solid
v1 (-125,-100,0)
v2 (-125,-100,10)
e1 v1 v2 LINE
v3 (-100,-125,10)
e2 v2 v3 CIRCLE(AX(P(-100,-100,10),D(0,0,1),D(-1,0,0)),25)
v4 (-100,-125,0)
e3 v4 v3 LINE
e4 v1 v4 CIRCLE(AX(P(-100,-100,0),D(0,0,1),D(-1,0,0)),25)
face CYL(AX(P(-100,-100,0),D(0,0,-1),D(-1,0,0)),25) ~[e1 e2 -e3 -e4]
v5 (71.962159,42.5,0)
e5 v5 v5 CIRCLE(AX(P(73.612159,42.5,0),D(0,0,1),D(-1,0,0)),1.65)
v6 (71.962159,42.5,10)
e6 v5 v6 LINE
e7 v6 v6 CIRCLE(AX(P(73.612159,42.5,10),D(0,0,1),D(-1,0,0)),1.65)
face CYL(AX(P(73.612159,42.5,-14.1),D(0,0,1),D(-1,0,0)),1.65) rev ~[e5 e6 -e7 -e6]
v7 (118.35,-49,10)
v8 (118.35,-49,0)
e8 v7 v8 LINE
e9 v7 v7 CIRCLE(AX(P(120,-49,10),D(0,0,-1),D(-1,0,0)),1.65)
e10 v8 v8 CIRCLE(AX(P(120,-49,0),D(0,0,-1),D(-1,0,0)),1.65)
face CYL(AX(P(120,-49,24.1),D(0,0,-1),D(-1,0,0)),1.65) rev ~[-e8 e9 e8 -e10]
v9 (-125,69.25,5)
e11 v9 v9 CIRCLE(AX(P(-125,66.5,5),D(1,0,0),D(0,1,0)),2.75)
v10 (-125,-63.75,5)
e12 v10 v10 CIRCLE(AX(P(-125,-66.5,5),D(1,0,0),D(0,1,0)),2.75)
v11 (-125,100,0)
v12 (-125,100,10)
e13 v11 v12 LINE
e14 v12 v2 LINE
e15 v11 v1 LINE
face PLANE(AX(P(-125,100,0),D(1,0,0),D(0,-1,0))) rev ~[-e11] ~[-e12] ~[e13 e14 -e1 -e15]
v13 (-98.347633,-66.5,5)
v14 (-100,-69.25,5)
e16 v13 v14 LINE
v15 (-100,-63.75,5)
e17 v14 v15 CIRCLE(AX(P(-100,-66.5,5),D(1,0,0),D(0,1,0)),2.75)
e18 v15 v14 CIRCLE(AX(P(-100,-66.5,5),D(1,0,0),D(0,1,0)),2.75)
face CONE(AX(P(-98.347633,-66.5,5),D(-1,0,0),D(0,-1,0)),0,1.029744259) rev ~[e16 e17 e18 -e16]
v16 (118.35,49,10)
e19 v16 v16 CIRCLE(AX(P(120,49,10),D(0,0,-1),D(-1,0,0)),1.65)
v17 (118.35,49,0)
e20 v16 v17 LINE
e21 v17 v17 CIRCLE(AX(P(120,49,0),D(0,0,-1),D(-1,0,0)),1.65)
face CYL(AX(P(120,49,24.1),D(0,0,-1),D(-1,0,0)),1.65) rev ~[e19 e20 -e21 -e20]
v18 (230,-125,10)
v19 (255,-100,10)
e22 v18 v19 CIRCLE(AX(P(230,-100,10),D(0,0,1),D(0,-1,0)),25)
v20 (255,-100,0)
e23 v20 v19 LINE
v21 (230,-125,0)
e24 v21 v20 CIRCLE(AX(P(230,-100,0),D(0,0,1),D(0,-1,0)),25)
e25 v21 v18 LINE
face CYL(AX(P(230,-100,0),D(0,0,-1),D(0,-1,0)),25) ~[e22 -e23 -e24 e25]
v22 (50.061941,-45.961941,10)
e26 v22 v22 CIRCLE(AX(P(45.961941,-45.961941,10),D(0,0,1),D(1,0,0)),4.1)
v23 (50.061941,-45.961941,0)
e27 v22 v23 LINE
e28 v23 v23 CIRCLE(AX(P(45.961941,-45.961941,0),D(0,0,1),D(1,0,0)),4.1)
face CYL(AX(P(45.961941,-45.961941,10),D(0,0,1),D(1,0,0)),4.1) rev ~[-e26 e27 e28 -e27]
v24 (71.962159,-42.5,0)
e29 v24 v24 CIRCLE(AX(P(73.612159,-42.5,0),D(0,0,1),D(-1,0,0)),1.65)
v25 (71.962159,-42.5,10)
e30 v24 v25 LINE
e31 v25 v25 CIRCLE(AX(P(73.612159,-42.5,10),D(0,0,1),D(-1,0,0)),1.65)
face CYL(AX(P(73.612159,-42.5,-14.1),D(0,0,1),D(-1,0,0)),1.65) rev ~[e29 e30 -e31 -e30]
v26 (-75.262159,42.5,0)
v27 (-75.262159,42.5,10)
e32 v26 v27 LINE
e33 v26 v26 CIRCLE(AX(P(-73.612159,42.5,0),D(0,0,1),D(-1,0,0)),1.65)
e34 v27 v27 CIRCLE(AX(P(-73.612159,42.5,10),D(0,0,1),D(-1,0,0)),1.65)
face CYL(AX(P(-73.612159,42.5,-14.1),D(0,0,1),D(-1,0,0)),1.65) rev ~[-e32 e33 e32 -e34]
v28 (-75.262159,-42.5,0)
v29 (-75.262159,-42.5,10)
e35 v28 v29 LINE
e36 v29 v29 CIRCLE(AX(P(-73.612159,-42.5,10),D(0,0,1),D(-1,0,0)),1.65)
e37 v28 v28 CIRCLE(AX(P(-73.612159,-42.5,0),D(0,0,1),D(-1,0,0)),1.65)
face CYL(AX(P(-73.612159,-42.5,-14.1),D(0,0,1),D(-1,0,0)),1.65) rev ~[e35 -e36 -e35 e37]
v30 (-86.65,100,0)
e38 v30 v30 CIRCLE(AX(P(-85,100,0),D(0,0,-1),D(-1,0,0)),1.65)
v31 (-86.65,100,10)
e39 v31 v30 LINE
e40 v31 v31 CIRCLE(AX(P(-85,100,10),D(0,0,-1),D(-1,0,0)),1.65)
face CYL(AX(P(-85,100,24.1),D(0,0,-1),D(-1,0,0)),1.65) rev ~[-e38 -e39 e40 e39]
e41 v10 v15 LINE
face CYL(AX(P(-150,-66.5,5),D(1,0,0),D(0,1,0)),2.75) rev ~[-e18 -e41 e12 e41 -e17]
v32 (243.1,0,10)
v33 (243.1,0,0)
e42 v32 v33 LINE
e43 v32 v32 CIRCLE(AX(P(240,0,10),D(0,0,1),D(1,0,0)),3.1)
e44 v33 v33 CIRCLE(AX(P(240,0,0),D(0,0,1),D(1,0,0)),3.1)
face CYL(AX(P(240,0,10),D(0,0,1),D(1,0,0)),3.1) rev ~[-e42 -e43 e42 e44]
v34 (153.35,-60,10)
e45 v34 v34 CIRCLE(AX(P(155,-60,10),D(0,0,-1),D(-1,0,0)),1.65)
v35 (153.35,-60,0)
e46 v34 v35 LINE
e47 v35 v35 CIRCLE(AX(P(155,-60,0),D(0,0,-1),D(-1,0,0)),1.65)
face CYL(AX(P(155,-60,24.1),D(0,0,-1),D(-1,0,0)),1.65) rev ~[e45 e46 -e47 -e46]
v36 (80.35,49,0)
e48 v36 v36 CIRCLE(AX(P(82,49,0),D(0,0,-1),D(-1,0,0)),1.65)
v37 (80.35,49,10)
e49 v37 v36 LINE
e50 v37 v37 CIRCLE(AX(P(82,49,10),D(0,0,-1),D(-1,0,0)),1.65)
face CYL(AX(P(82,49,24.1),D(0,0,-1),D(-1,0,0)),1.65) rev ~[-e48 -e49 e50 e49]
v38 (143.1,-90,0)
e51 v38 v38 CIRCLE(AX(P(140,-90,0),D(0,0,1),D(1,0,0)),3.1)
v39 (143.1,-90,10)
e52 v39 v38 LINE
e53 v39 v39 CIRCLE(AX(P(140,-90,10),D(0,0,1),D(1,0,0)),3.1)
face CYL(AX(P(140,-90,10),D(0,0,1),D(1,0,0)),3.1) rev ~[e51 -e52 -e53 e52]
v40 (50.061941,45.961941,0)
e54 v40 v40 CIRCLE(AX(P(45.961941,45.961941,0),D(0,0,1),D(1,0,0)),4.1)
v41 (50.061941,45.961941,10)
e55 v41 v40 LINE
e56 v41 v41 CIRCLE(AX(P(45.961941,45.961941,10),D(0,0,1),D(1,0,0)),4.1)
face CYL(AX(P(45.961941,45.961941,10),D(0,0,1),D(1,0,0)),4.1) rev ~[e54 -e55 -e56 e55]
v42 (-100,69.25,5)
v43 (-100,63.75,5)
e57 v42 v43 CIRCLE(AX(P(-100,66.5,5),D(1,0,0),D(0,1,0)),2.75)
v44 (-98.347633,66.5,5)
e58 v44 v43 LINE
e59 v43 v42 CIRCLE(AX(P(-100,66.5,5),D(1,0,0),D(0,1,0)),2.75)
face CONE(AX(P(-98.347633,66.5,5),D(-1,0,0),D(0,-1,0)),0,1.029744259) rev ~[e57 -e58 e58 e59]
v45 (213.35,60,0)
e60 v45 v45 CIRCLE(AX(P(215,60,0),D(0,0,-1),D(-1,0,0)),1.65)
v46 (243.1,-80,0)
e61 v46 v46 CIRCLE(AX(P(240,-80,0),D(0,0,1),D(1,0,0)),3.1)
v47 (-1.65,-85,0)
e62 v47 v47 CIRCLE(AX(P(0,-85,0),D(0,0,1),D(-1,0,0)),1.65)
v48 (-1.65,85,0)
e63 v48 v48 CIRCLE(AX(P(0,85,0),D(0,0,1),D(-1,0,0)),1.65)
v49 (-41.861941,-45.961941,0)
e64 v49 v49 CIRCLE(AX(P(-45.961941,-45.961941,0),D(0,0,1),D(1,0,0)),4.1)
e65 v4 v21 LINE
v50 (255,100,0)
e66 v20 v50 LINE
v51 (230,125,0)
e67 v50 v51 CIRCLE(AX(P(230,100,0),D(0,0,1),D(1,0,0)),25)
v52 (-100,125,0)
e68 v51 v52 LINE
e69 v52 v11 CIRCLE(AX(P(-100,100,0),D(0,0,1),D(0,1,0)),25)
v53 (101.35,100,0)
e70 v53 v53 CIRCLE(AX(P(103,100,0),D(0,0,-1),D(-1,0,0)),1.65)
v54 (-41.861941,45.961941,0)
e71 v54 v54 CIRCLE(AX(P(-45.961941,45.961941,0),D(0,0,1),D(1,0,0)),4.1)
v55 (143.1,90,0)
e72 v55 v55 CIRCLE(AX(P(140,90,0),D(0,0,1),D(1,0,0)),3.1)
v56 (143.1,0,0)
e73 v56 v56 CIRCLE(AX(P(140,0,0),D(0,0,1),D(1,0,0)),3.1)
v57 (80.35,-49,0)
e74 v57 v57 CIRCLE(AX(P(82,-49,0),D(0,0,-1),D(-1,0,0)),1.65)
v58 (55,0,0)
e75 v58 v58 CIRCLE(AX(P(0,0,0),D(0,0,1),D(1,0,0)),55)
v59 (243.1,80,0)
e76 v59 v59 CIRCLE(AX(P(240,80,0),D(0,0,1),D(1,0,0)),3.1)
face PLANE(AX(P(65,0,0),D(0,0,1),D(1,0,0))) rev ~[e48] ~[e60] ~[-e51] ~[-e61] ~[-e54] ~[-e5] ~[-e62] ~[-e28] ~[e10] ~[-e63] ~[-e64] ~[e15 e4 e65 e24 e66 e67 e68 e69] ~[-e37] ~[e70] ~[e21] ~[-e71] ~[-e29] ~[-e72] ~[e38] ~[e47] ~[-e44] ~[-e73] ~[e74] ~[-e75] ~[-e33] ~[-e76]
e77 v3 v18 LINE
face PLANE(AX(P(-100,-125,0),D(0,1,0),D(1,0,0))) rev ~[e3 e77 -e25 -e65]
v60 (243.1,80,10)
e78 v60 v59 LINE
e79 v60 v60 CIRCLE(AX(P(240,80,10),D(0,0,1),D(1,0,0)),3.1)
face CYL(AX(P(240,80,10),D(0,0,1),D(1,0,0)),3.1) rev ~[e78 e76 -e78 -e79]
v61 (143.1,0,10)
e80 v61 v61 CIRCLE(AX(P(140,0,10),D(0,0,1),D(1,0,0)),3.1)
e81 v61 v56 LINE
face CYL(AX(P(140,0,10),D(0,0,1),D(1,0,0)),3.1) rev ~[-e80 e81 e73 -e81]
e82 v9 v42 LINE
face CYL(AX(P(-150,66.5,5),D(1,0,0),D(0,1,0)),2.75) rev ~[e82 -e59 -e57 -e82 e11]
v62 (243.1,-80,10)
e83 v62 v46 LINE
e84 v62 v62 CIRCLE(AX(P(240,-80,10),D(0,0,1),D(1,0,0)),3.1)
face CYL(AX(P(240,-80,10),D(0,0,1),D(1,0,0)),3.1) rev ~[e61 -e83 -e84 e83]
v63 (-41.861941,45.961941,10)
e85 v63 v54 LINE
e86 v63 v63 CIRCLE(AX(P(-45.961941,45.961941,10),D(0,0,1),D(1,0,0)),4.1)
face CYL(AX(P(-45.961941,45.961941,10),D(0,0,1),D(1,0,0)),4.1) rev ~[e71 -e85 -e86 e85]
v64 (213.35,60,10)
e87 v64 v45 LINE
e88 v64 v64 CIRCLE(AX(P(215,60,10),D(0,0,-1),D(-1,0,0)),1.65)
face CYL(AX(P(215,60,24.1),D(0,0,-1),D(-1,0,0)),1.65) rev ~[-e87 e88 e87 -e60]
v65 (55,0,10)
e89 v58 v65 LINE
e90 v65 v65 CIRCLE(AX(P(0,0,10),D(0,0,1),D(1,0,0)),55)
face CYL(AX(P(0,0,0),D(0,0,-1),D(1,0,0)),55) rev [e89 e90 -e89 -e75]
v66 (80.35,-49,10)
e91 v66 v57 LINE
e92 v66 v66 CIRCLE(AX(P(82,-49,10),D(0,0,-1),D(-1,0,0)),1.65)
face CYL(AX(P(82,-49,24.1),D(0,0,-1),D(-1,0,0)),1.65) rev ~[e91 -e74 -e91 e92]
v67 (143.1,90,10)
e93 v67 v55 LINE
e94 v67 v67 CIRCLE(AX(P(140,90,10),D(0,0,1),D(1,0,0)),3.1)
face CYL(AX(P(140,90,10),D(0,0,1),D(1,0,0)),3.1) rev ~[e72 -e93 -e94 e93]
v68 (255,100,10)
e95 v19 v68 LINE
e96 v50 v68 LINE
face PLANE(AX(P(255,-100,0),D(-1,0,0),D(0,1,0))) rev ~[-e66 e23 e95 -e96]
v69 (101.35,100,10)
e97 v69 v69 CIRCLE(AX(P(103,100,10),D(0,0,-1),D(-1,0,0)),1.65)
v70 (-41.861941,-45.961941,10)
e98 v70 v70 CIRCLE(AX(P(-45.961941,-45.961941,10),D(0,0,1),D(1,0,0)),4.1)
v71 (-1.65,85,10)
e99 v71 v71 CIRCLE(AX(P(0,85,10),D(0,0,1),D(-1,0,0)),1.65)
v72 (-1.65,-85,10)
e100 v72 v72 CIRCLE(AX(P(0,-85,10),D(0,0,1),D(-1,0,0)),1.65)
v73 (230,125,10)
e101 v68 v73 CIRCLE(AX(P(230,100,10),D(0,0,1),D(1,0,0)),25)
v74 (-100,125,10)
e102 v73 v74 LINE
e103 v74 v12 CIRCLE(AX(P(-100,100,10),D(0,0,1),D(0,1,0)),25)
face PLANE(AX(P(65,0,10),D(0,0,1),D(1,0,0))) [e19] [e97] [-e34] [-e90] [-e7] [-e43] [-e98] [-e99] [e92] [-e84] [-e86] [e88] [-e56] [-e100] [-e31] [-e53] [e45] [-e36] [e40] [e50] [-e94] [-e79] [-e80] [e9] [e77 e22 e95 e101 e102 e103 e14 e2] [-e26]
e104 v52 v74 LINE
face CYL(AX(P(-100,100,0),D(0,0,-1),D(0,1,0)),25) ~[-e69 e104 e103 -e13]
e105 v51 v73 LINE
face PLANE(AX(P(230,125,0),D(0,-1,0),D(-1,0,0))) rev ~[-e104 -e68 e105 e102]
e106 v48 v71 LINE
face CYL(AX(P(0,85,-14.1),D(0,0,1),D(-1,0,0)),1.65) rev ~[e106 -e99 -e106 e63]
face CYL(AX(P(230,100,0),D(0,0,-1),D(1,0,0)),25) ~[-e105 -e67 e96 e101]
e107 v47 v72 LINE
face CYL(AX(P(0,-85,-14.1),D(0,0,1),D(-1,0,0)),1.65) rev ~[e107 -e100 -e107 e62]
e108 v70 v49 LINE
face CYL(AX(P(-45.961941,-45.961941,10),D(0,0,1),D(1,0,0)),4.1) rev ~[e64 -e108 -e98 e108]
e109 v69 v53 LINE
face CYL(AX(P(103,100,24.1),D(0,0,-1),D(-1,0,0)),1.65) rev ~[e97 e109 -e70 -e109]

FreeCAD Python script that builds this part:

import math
import FreeCAD as App
import Part
import Sketcher
Q = App.Units.Quantity

doc = App.newDocument("Part")
body = doc.addObject("PartDesign::Body", "Body")

sketch1 = body.newObject("Sketcher::SketchObject", "Sketch")
sketch1.AttachmentSupport = (doc.getObject("XY_Plane"), [""])
sketch1.MapMode = "FlatFace"
sketch1.addGeometry([
    Part.ArcOfCircle(Part.Circle(App.Vector(-100, -100, 0), App.Vector(0, 0, 1), 25), math.radians(180), math.radians(270)),
    Part.LineSegment(App.Vector(-100, -125, 0), App.Vector(230, -125, 0)),
    Part.ArcOfCircle(Part.Circle(App.Vector(230, -100, 0), App.Vector(0, 0, 1), 25), math.radians(-90), math.radians(0)),
    Part.LineSegment(App.Vector(255, -100, 0), App.Vector(255, 100, 0)),
    Part.ArcOfCircle(Part.Circle(App.Vector(230, 100, 0), App.Vector(0, 0, 1), 25), math.radians(0), math.radians(90)),
    Part.LineSegment(App.Vector(230, 125, 0), App.Vector(-100, 125, 0)),
    Part.ArcOfCircle(Part.Circle(App.Vector(-100, 100, 0), App.Vector(0, 0, 1), 25), math.radians(90), math.radians(180)),
    Part.LineSegment(App.Vector(-125, 100, 0), App.Vector(-125, -100, 0)),
    Part.Circle(App.Vector(0, 0, 0), App.Vector(0, 0, 1), 55),
], False)
sketch1.addConstraint([
    Sketcher.Constraint("Tangent", 0, 2, 1, 1),
    Sketcher.Constraint("Tangent", 1, 2, 2, 1),
    Sketcher.Constraint("Tangent", 2, 2, 3, 1),
    Sketcher.Constraint("Tangent", 3, 2, 4, 1),
    Sketcher.Constraint("Tangent", 4, 2, 5, 1),
    Sketcher.Constraint("Tangent", 5, 2, 6, 1),
    Sketcher.Constraint("Tangent", 6, 2, 7, 1),
    Sketcher.Constraint("Tangent", 7, 2, 0, 1),
    Sketcher.Constraint("Horizontal", 1),
    Sketcher.Constraint("Vertical", 3),
    Sketcher.Constraint("Horizontal", 5),
    Sketcher.Constraint("Vertical", 7),
    Sketcher.Constraint("Coincident", 8, 3, -1, 1),
    Sketcher.Constraint("Equal", 0, 2),
    Sketcher.Constraint("Equal", 2, 4),
    Sketcher.Constraint("Equal", 4, 6),
    Sketcher.Constraint("Diameter", 8, Q("110 mm")),
    Sketcher.Constraint("Radius", 0, Q("25 mm")),
    Sketcher.Constraint("DistanceX", 1, 1, 1, 2, Q("330 mm")),
    Sketcher.Constraint("DistanceY", 3, 1, 3, 2, Q("200 mm")),
    Sketcher.Constraint("DistanceX", 0, 3, -1, 1, Q("100 mm")),
    Sketcher.Constraint("DistanceY", 0, 3, -1, 1, Q("100 mm")),
])
pad1 = body.newObject("PartDesign::Pad", "Pad")
pad1.Profile = sketch1
pad1.Length = 10

sketch2 = body.newObject("Sketcher::SketchObject", "Sketch001")
sketch2.AttachmentSupport = (doc.getObject("XY_Plane"), [""])
sketch2.MapMode = "FlatFace"
sketch2.AttachmentOffset = App.Placement(App.Vector(0, 0, 10), App.Rotation())
sketch2.addGeometry([
    Part.Circle(App.Vector(-46, 46, 0), App.Vector(0, 0, 1), 4.1),
    Part.Circle(App.Vector(46, 46, 0), App.Vector(0, 0, 1), 4.1),
    Part.Circle(App.Vector(46, -46, 0), App.Vector(0, 0, 1), 4.1),
    Part.Circle(App.Vector(-46, -46, 0), App.Vector(0, 0, 1), 4.1),
], False)
sketch2.addConstraint([
    Sketcher.Constraint("Equal", 0, 1),
    Sketcher.Constraint("Equal", 1, 2),
    Sketcher.Constraint("Equal", 2, 3),
    Sketcher.Constraint("Symmetric", 0, 3, 2, 3, -1, 1),
    Sketcher.Constraint("Symmetric", 1, 3, 3, 3, -1, 1),
    Sketcher.Constraint("Symmetric", 0, 3, 1, 3, -2),
    Sketcher.Constraint("Diameter", 0, Q("8.2 mm")),
    Sketcher.Constraint("DistanceX", 0, 3, -1, 1, Q("45.961941 mm")),
    Sketcher.Constraint("DistanceY", -1, 1, 0, 3, Q("45.961941 mm")),
])
pocket1 = body.newObject("PartDesign::Pocket", "Pocket")
pocket1.Profile = sketch2
pocket1.Length = 25

sketch3 = body.newObject("Sketcher::SketchObject", "Sketch002")
sketch3.AttachmentSupport = (doc.getObject("XY_Plane"), [""])
sketch3.MapMode = "FlatFace"
sketch3.AttachmentOffset = App.Placement(App.Vector(0, 0, 10), App.Rotation())
sketch3.addGeometry([
    Part.Circle(App.Vector(140, 90, 0), App.Vector(0, 0, 1), 3.1),
    Part.Circle(App.Vector(140, 0, 0), App.Vector(0, 0, 1), 3.1),
    Part.Circle(App.Vector(140, -90, 0), App.Vector(0, 0, 1), 3.1),
    Part.Circle(App.Vector(240, -80, 0), App.Vector(0, 0, 1), 3.1),
    Part.Circle(App.Vector(240, 0, 0), App.Vector(0, 0, 1), 3.1),
    Part.Circle(App.Vector(240, 80, 0), App.Vector(0, 0, 1), 3.1),
], False)
sketch3.addConstraint([
    Sketcher.Constraint("Equal", 0, 1),
    Sketcher.Constraint("Equal", 1, 2),
    Sketcher.Constraint("Equal", 2, 3),
    Sketcher.Constraint("Equal", 3, 4),
    Sketcher.Constraint("Equal", 4, 5),
    Sketcher.Constraint("Symmetric", 0, 3, 2, 3, -1),
    Sketcher.Constraint("Symmetric", 3, 3, 5, 3, -1),
    Sketcher.Constraint("PointOnObject", 1, 3, -1),
    Sketcher.Constraint("PointOnObject", 4, 3, -1),
    Sketcher.Constraint("Vertical", 0, 3, 1, 3),
    Sketcher.Constraint("Vertical", 3, 3, 4, 3),
    Sketcher.Constraint("Diameter", 0, Q("6.2 mm")),
    Sketcher.Constraint("DistanceX", -1, 1, 0, 3, Q("140 mm")),
    Sketcher.Constraint("DistanceY", -1, 1, 0, 3, Q("90 mm")),
    Sketcher.Constraint("DistanceX", -1, 1, 3, 3, Q("240 mm")),
    Sketcher.Constraint("DistanceY", 3, 3, -1, 1, Q("80 mm")),
])
pocket2 = body.newObject("PartDesign::Pocket", "Pocket001")
pocket2.Profile = sketch3
pocket2.Length = 25

sketch4 = body.newObject("Sketcher::SketchObject", "Sketch003")
sketch4.AttachmentSupport = (doc.getObject("YZ_Plane"), [""])
sketch4.MapMode = "FlatFace"
sketch4.AttachmentOffset = App.Placement(App.Vector(0, 0, -125), App.Rotation())
sketch4.addGeometry([
    Part.Circle(App.Vector(66.5, 5, 0), App.Vector(0, 0, 1), 2.8),
    Part.Circle(App.Vector(-66.5, 5, 0), App.Vector(0, 0, 1), 2.8),
], False)
sketch4.addConstraint([
    Sketcher.Constraint("Equal", 0, 1),
    Sketcher.Constraint("Symmetric", 0, 3, 1, 3, -2),
    Sketcher.Constraint("Diameter", 0, Q("5.5 mm")),
    Sketcher.Constraint("DistanceY", -1, 1, 0, 3, Q("5 mm")),
    Sketcher.Constraint("DistanceX", 1, 3, 0, 3, Q("133 mm")),
])
doc.recompute()
hole = body.newObject("PartDesign::Hole", "Hole")
hole.Profile = sketch4
hole.ThreadType = "None"
hole.Diameter = 5.5
hole.DepthType = "Dimension"
hole.Depth = 25
hole.DrillPoint = "Angled"
hole.DrillPointAngle = 118
hole.Reversed = True

sketch5 = body.newObject("Sketcher::SketchObject", "Sketch004")
sketch5.AttachmentSupport = (doc.getObject("XY_Plane"), [""])
sketch5.MapMode = "FlatFace"
sketch5.AttachmentOffset = App.Placement(App.Vector(0, 0, 10), App.Rotation())
sketch5.addGeometry([
    Part.Circle(App.Vector(82, 49, 0), App.Vector(0, 0, 1), 1.6),
    Part.Circle(App.Vector(120, 49, 0), App.Vector(0, 0, 1), 1.6),
    Part.Circle(App.Vector(120, -49, 0), App.Vector(0, 0, 1), 1.6),
    Part.Circle(App.Vector(82, -49, 0), App.Vector(0, 0, 1), 1.6),
], False)
sketch5.addConstraint([
    Sketcher.Constraint("Equal", 0, 1),
    Sketcher.Constraint("Equal", 1, 2),
    Sketcher.Constraint("Equal", 2, 3),
    Sketcher.Constraint("Symmetric", 1, 3, 2, 3, -1),
    Sketcher.Constraint("Symmetric", 0, 3, 3, 3, -1),
    Sketcher.Constraint("Horizontal", 0, 3, 1, 3),
    Sketcher.Constraint("Diameter", 0, Q("3.3 mm")),
    Sketcher.Constraint("DistanceX", -1, 1, 0, 3, Q("82 mm")),
    Sketcher.Constraint("DistanceY", -1, 1, 0, 3, Q("49 mm")),
    Sketcher.Constraint("DistanceX", -1, 1, 1, 3, Q("120 mm")),
])
doc.recompute()
hole2 = body.newObject("PartDesign::Hole", "Hole001")
hole2.Profile = sketch5
hole2.ThreadType = "None"
hole2.Diameter = 3.3
hole2.DepthType = "Dimension"
hole2.Depth = 14.1
hole2.DrillPoint = "Angled"
hole2.DrillPointAngle = 118

sketch6 = body.newObject("Sketcher::SketchObject", "Sketch005")
sketch6.AttachmentSupport = (doc.getObject("XY_Plane"), [""])
sketch6.MapMode = "FlatFace"
sketch6.AttachmentOffset = App.Placement(App.Vector(0, 0, 10), App.Rotation())
sketch6.addGeometry([
    Part.Circle(App.Vector(-85, 100, 0), App.Vector(0, 0, 1), 1.6),
    Part.Circle(App.Vector(103, 100, 0), App.Vector(0, 0, 1), 1.6),
], False)
sketch6.addConstraint([
    Sketcher.Constraint("Equal", 0, 1),
    Sketcher.Constraint("Horizontal", 0, 3, 1, 3),
    Sketcher.Constraint("Diameter", 0, Q("3.3 mm")),
    Sketcher.Constraint("DistanceX", 0, 3, -1, 1, Q("85 mm")),
    Sketcher.Constraint("DistanceY", -1, 1, 0, 3, Q("100 mm")),
    Sketcher.Constraint("DistanceX", -1, 1, 1, 3, Q("103 mm")),
])
doc.recompute()
hole3 = body.newObject("PartDesign::Hole", "Hole002")
hole3.Profile = sketch6
hole3.ThreadType = "None"
hole3.Diameter = 3.3
hole3.DepthType = "Dimension"
hole3.Depth = 14.1
hole3.DrillPoint = "Angled"
hole3.DrillPointAngle = 118

sketch7 = body.newObject("Sketcher::SketchObject", "Sketch006")
sketch7.AttachmentSupport = (doc.getObject("XY_Plane"), [""])
sketch7.MapMode = "FlatFace"
sketch7.AttachmentOffset = App.Placement(App.Vector(0, 0, 10), App.Rotation())
sketch7.addGeometry([
    Part.Circle(App.Vector(215, 60, 0), App.Vector(0, 0, 1), 1.6),
    Part.Circle(App.Vector(155, -60, 0), App.Vector(0, 0, 1), 1.6),
], False)
sketch7.addConstraint([
    Sketcher.Constraint("Equal", 0, 1),
    Sketcher.Constraint("Diameter", 0, Q("3.3 mm")),
    Sketcher.Constraint("DistanceX", -1, 1, 0, 3, Q("215 mm")),
    Sketcher.Constraint("DistanceY", -1, 1, 0, 3, Q("60 mm")),
    Sketcher.Constraint("DistanceX", -1, 1, 1, 3, Q("155 mm")),
    Sketcher.Constraint("DistanceY", 1, 3, -1, 1, Q("60 mm")),
])
doc.recompute()
hole4 = body.newObject("PartDesign::Hole", "Hole003")
hole4.Profile = sketch7
hole4.ThreadType = "None"
hole4.Diameter = 3.3
hole4.DepthType = "Dimension"
hole4.Depth = 14.1
hole4.DrillPoint = "Angled"
hole4.DrillPointAngle = 118

sketch8 = body.newObject("Sketcher::SketchObject", "Sketch007")
sketch8.AttachmentSupport = (doc.getObject("XY_Plane"), [""])
sketch8.MapMode = "FlatFace"
sketch8.addGeometry([
    Part.Circle(App.Vector(-73.6, 42.5, 0), App.Vector(0, 0, 1), 1.6),
    Part.Circle(App.Vector(-73.6, -42.5, 0), App.Vector(0, 0, 1), 1.6),
    Part.Circle(App.Vector(0, -85, 0), App.Vector(0, 0, 1), 1.6),
    Part.Circle(App.Vector(73.6, -42.5, 0), App.Vector(0, 0, 1), 1.6),
    Part.Circle(App.Vector(73.6, 42.5, 0), App.Vector(0, 0, 1), 1.6),
    Part.Circle(App.Vector(0, 85, 0), App.Vector(0, 0, 1), 1.6),
], False)
sketch8.addConstraint([
    Sketcher.Constraint("Equal", 0, 1),
    Sketcher.Constraint("Equal", 1, 2),
    Sketcher.Constraint("Equal", 2, 3),
    Sketcher.Constraint("Equal", 3, 4),
    Sketcher.Constraint("Equal", 4, 5),
    Sketcher.Constraint("Symmetric", 0, 3, 3, 3, -1, 1),
    Sketcher.Constraint("Symmetric", 1, 3, 4, 3, -1, 1),
    Sketcher.Constraint("Symmetric", 2, 3, 5, 3, -1, 1),
    Sketcher.Constraint("Symmetric", 1, 3, 3, 3, -2),
    Sketcher.Constraint("PointOnObject", 2, 3, -2),
    Sketcher.Constraint("Diameter", 0, Q("3.3 mm")),
    Sketcher.Constraint("DistanceY", 2, 3, -1, 1, Q("85 mm")),
    Sketcher.Constraint("DistanceY", 1, 3, 0, 3, Q("85 mm")),
    Sketcher.Constraint("DistanceX", 0, 3, -1, 1, Q("73.612159 mm")),
])
doc.recompute()
hole5 = body.newObject("PartDesign::Hole", "Hole004")
hole5.Profile = sketch8
hole5.ThreadType = "None"
hole5.Diameter = 3.3
hole5.DepthType = "Dimension"
hole5.Depth = 14.1
hole5.DrillPoint = "Angled"
hole5.DrillPointAngle = 118
hole5.Reversed = True

doc.recompute()
